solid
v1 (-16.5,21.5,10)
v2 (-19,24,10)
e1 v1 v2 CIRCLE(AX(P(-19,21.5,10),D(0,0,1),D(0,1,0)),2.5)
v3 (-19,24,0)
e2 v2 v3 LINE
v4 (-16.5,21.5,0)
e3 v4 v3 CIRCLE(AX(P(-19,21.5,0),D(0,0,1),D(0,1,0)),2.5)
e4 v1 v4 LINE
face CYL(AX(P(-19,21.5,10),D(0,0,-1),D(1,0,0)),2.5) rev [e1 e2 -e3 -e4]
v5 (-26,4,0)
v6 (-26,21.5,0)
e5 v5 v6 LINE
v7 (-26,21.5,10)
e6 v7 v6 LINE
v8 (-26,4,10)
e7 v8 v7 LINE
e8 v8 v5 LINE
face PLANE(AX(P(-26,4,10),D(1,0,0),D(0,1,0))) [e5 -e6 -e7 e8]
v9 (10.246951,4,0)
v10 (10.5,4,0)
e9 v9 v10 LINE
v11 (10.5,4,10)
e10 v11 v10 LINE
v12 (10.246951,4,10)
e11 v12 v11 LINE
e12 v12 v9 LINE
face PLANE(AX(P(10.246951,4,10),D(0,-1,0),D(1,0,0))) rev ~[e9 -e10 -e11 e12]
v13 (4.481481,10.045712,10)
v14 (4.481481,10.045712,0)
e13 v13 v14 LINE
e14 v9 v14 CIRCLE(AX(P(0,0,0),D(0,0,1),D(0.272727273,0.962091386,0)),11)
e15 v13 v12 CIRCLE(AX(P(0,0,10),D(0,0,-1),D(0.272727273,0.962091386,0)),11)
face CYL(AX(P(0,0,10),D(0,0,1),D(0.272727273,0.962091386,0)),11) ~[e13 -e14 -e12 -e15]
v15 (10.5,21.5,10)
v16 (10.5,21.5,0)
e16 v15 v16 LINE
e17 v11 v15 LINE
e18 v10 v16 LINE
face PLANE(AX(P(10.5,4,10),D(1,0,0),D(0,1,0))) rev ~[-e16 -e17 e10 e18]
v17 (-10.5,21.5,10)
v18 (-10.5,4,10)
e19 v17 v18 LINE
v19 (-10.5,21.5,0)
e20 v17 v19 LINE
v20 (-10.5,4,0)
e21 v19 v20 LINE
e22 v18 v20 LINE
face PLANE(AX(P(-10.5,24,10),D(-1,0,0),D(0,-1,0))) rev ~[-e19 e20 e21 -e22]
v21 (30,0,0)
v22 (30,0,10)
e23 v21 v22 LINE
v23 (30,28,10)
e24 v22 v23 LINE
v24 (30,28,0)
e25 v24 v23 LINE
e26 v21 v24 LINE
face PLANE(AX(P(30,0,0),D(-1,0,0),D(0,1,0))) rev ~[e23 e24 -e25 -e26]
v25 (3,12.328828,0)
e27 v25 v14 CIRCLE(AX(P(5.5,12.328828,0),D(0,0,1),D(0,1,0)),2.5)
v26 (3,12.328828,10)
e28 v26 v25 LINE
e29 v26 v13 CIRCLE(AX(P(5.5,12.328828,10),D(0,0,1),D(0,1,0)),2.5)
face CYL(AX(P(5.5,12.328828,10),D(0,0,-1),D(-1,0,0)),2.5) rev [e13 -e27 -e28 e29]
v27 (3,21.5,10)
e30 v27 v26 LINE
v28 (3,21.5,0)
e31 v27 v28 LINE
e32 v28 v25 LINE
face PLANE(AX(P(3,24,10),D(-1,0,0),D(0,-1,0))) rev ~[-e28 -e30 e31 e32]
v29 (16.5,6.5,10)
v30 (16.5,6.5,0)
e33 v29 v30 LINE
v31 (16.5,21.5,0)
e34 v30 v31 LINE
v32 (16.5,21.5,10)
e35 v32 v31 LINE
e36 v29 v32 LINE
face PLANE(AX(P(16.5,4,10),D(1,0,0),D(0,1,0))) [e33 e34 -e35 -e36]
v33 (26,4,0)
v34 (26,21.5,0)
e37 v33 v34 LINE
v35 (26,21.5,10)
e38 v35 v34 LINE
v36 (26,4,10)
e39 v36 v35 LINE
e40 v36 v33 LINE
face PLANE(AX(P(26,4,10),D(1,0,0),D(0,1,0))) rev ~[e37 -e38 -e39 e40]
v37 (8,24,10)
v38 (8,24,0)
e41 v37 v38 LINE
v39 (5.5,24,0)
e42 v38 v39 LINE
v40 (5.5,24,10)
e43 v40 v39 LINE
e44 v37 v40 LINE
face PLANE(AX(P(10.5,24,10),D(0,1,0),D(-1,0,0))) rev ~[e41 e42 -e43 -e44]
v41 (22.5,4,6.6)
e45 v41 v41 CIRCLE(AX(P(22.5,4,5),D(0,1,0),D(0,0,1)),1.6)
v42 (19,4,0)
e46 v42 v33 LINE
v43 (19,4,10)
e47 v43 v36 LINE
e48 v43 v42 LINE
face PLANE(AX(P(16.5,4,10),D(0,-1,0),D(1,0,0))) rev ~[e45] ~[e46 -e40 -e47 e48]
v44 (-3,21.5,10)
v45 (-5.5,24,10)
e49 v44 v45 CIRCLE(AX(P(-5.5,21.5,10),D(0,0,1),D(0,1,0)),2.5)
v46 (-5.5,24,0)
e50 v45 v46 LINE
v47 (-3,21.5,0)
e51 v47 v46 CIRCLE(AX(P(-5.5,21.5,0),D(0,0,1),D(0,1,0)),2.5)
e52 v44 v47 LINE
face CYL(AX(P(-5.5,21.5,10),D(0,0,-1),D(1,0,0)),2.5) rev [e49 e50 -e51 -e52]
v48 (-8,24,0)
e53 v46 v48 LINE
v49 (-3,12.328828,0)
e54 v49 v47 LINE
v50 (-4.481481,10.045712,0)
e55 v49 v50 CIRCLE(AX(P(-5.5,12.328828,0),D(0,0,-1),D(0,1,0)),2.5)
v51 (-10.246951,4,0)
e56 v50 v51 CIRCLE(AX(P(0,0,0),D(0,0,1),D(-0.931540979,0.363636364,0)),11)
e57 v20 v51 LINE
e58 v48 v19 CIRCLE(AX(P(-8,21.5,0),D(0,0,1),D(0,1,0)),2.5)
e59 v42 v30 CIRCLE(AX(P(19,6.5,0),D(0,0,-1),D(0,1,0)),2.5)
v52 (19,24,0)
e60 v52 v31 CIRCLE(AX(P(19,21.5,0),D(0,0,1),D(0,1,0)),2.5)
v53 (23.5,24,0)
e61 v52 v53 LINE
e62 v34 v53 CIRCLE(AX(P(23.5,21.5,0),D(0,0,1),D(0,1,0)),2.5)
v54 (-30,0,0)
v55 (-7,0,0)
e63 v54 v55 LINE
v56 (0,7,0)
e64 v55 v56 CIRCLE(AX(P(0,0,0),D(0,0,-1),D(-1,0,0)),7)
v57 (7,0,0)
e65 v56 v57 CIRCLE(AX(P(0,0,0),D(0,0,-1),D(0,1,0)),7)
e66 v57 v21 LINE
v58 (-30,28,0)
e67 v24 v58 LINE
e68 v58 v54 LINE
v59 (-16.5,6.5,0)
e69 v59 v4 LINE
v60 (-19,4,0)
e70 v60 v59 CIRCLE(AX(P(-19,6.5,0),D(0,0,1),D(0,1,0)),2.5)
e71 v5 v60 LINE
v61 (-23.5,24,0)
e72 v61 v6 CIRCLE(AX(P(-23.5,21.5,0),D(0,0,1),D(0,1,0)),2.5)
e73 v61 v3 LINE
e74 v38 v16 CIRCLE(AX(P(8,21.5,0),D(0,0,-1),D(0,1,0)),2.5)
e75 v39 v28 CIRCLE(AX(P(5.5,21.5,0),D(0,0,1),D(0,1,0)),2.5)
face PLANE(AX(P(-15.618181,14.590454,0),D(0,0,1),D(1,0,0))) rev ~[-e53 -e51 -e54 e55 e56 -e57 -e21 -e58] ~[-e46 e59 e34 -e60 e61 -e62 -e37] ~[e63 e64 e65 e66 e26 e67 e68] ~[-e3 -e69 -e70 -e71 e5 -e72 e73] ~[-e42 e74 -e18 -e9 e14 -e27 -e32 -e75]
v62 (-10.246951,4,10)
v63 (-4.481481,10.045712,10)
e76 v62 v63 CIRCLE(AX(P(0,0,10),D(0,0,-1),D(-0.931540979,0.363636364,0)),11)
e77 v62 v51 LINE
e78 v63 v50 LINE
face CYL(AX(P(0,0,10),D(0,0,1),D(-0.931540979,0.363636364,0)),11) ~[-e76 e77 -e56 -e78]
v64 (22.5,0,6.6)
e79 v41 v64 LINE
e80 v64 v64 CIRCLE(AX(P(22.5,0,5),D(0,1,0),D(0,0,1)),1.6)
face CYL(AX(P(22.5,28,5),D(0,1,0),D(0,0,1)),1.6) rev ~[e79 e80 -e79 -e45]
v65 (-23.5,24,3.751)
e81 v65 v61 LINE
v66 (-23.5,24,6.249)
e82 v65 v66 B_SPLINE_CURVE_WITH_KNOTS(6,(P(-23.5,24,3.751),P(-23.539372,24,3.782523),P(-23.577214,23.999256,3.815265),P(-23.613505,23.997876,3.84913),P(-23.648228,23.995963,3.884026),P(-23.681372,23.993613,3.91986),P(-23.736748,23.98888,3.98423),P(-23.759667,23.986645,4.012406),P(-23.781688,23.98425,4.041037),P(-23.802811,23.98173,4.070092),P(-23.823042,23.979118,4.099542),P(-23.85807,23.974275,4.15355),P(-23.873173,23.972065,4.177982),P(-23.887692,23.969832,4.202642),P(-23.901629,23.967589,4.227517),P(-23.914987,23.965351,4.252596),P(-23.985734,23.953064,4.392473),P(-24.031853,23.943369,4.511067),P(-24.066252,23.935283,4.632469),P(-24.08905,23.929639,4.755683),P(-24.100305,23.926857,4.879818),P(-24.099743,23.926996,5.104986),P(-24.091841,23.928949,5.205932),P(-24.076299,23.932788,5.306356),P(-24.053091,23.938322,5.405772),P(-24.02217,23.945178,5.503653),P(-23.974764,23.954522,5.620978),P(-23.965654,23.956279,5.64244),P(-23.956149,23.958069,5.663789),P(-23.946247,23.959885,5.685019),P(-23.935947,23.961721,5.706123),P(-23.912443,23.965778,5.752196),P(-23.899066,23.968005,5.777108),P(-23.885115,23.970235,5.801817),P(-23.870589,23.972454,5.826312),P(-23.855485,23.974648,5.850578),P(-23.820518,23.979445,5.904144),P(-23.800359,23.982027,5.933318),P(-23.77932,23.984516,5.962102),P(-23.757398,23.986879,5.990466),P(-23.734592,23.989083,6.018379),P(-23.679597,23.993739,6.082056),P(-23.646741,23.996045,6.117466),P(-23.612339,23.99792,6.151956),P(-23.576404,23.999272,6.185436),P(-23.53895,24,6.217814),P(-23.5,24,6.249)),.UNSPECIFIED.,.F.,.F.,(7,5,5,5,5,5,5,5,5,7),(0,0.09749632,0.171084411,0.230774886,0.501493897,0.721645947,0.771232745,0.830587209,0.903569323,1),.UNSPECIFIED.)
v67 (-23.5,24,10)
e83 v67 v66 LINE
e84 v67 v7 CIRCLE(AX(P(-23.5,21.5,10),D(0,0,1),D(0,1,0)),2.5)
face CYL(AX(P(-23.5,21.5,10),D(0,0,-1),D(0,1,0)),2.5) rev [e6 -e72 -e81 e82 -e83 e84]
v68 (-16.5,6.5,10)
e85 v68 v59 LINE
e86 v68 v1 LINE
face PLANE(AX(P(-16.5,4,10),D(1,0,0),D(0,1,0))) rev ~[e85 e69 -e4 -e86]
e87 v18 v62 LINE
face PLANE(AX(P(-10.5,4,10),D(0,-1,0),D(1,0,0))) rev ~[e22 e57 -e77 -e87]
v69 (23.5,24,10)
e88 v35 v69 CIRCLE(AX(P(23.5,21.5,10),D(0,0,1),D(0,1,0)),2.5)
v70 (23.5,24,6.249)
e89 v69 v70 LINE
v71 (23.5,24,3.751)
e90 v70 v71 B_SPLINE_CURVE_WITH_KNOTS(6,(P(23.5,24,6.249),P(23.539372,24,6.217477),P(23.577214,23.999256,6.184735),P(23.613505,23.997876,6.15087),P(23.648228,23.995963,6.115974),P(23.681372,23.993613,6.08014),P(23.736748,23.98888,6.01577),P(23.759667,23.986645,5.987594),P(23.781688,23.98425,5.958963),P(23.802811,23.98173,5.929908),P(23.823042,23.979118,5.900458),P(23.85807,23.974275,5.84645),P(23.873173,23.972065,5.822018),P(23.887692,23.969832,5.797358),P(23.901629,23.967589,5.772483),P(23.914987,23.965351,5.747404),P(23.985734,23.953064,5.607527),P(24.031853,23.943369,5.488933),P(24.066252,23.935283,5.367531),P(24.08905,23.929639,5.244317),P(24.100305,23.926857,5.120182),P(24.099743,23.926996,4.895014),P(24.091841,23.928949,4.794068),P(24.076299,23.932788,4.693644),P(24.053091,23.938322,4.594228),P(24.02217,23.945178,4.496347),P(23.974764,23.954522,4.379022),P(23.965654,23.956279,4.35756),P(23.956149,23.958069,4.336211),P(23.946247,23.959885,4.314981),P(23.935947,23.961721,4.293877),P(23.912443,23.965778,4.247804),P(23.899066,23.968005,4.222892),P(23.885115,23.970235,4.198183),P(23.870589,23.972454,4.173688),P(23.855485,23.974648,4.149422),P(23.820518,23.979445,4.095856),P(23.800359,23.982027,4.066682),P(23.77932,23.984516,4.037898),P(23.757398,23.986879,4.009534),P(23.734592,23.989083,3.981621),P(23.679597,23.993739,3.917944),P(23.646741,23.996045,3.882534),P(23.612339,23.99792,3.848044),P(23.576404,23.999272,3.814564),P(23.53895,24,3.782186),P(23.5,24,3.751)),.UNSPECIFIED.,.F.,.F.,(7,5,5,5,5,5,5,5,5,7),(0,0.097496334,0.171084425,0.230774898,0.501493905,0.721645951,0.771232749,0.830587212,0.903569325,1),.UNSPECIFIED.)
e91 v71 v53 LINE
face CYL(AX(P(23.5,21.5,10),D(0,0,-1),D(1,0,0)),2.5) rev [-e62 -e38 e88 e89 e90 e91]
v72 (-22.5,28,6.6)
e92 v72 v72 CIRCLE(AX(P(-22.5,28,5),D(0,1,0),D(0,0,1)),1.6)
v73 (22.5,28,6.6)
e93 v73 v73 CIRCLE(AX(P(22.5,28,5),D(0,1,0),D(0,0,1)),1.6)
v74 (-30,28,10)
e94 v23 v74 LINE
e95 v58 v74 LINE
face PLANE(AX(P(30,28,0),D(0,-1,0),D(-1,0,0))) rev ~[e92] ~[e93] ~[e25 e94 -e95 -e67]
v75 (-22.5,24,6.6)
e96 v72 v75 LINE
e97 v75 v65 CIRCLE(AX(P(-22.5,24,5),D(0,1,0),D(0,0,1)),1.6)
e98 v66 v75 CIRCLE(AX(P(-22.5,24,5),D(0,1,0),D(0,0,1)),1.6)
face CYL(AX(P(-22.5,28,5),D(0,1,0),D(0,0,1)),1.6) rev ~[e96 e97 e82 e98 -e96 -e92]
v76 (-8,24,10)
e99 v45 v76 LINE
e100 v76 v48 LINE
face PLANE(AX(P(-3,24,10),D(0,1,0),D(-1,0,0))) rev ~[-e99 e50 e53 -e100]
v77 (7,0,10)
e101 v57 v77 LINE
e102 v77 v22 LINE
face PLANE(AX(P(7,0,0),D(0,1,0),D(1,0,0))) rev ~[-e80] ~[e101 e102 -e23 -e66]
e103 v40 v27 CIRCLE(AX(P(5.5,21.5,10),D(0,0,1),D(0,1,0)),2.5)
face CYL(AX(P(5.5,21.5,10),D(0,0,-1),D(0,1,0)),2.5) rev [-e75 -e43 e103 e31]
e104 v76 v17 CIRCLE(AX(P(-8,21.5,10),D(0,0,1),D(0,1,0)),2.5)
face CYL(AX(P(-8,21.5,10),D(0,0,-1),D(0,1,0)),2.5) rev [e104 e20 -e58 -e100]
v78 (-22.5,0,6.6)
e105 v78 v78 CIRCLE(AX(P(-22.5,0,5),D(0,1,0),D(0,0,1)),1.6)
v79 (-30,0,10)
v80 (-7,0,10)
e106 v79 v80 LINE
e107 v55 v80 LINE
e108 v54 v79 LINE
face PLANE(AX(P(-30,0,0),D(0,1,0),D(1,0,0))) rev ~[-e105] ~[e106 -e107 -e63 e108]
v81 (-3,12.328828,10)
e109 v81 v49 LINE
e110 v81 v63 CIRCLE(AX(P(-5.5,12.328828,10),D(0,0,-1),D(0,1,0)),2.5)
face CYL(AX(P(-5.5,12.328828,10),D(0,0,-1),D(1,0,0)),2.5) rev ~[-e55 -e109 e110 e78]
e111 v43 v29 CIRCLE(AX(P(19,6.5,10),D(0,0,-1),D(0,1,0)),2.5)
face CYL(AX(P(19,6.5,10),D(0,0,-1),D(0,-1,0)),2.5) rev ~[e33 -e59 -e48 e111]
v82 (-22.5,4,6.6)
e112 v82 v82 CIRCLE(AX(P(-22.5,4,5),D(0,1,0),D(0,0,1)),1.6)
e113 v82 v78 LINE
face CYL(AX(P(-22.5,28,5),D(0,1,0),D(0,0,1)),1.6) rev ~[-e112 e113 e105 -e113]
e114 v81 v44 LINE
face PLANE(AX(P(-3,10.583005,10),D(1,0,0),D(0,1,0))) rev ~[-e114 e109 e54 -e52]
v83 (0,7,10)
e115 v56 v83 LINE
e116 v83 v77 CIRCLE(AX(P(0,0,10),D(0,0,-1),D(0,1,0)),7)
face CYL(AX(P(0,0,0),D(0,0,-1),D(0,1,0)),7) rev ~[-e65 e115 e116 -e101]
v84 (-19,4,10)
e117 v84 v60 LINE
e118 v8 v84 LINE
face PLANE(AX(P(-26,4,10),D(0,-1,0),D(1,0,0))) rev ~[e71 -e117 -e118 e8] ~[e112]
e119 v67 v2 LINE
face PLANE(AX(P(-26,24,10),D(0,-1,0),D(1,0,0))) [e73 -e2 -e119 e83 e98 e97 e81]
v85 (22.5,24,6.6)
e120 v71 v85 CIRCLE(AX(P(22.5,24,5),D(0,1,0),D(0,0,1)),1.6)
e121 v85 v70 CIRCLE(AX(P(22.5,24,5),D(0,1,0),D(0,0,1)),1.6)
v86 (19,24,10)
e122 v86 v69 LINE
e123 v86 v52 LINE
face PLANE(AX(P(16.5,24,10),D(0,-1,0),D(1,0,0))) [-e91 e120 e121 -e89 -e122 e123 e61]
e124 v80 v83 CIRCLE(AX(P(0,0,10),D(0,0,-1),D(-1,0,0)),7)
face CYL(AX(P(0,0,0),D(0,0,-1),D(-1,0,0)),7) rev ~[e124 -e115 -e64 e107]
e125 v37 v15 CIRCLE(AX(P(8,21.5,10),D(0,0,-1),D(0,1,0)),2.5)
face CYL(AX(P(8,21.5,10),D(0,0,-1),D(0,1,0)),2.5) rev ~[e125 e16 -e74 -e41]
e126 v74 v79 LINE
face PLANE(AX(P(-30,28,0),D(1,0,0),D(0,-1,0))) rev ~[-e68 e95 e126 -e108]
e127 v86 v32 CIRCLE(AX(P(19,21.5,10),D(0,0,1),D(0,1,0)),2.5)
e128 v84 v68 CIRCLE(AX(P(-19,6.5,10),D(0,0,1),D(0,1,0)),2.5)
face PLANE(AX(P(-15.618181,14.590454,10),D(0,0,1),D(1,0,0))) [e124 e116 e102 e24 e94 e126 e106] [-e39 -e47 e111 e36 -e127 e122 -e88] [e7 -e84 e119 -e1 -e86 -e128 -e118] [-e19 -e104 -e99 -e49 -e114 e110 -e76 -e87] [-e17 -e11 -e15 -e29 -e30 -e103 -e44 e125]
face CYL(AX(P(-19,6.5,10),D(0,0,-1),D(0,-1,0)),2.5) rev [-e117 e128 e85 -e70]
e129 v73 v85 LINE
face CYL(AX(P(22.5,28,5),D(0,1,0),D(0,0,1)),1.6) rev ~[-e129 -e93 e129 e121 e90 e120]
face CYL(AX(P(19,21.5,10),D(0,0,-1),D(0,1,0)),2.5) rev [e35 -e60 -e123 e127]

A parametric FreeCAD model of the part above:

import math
import FreeCAD as App
import Part
import Sketcher
from FreeCAD import Vector


def edges_at(feature, points):
    """Names of the edges that pass closest to the given points."""
    edges = feature.Shape.Edges
    near = lambda p: min(range(len(edges)), key=lambda i: edges[i].distToShape(Part.Vertex(*p))[0])
    return sorted({f"Edge{near(p) + 1}" for p in points})


def add_polygon(sketch, points):
    """Adds a closed chain of lines whose ends are joined by coincident constraints."""
    first, n = sketch.GeometryCount, len(points)
    for a, b in zip(points, points[1:] + points[:1]):
        sketch.addGeometry(Part.LineSegment(App.Vector(*a, 0), App.Vector(*b, 0)), False)
    for i in range(n):
        sketch.addConstraint(Sketcher.Constraint("Coincident", first + i, 2, first + (i + 1) % n, 1))

doc = App.newDocument("Part")
params = doc.addObject("Spreadsheet::Sheet", "Params")
for row, (alias, value) in enumerate([
    ("sketch1_radius", "7 mm"),
    ("sketch1_width", "23 mm"),
    ("sketch1_height", "28 mm"),
    ("pad1_length", "10 mm"),
    ("sketch2_radius", "11 mm"),
    ("sketch2_height", "20 mm"),
    ("sketch2_width", "7.5 mm"),
    ("sketch2_width2", "9.5 mm"),
    ("pocket1_length", "15 mm"),
    ("fillet_radius", "2.5 mm"),
    ("sketch3_diameter", "3.2 mm"),
], start=1):
    params.set(f"A{row}", alias)
    params.set(f"B{row}", "=" + value)
    params.setAlias(f"B{row}", alias)

body = doc.addObject("PartDesign::Body", "Body")

# Sketch on XY plane
sketch1 = doc.addObject("Sketcher::SketchObject", "Sketch")
body.addObject(sketch1)
sketch1.AttachmentSupport = (doc.XY_Plane, [""])
sketch1.MapMode = "FlatFace"
sketch1.addGeometry([
    Part.LineSegment(Vector(-30, 28, 0), Vector(-30, 0, 0)),  # 0
    Part.LineSegment(Vector(-30, 0, 0), Vector(-7, 0, 0)),  # 1
    Part.ArcOfCircle(Part.Circle(Vector(0, 0, 0), Vector(0, 0, 1), 7), math.radians(90), math.radians(180)),  # 2
    Part.ArcOfCircle(Part.Circle(Vector(0, 0, 0), Vector(0, 0, 1), 7), math.radians(0), math.radians(90)),  # 3
    Part.LineSegment(Vector(7, 0, 0), Vector(30, 0, 0)),  # 4
    Part.LineSegment(Vector(30, 0, 0), Vector(30, 28, 0)),  # 5
    Part.LineSegment(Vector(30, 28, 0), Vector(-30, 28, 0)),  # 6
], False)
sketch1.addConstraint([
    Sketcher.Constraint("Coincident", 0, 2, 1, 1),
    Sketcher.Constraint("Coincident", 1, 2, 2, 2),
    Sketcher.Constraint("Tangent", 2, 1, 3, 2),
    Sketcher.Constraint("Coincident", 3, 1, 4, 1),
    Sketcher.Constraint("Coincident", 4, 2, 5, 1),
    Sketcher.Constraint("Coincident", 5, 2, 6, 1),
    Sketcher.Constraint("Coincident", 6, 2, 0, 1),
    Sketcher.Constraint("Vertical", 0),
    Sketcher.Constraint("Horizontal", 1),
    Sketcher.Constraint("Horizontal", 4),
    Sketcher.Constraint("Vertical", 5),
    Sketcher.Constraint("Horizontal", 6),
    Sketcher.Constraint("Coincident", 2, 3, -1, 1),
    Sketcher.Constraint("Equal", 2, 3),
    Sketcher.Constraint("Symmetric", 0, 2, 4, 2, -1, 1),
    Sketcher.Constraint("PointOnObject", 0, 2, -1),
    Sketcher.Constraint("PointOnObject", 2, 1, -2),
    Sketcher.Constraint("Radius", 2, 7.0),
    Sketcher.Constraint("DistanceX", 1, 1, 1, 2, 23.0),
    Sketcher.Constraint("DistanceY", 0, 2, 0, 1, 28.0),
])
sketch1.setExpression("Constraints[17]", "Params.sketch1_radius")
sketch1.setExpression("Constraints[18]", "Params.sketch1_width")
sketch1.setExpression("Constraints[19]", "Params.sketch1_height")
pad1 = doc.addObject("PartDesign::Pad", "Pad")
body.addObject(pad1)
pad1.Profile = sketch1
pad1.setExpression("Length", "Params.pad1_length")

# Sketch on XY plane
sketch2 = doc.addObject("Sketcher::SketchObject", "Sketch001")
body.addObject(sketch2)
sketch2.AttachmentSupport = (doc.XY_Plane, [""])
sketch2.MapMode = "FlatFace"
sketch2.AttachmentOffset = App.Placement(Vector(0, 0, 10), App.Rotation())
sketch2.addGeometry(Part.LineSegment(Vector(10.5, 24, 0), Vector(3, 24, 0)), False)  # 0
sketch2.addGeometry(Part.LineSegment(Vector(3, 24, 0), Vector(3, 10.58, 0)), False)  # 1
sketch2.addGeometry(Part.ArcOfCircle(Part.Circle(Vector(0, 0, 0), Vector(0, 0, 1), 11), math.radians(21), math.radians(74)), False)  # 2
sketch2.addGeometry(Part.LineSegment(Vector(10.25, 4, 0), Vector(10.5, 4, 0)), False)  # 3
sketch2.addGeometry(Part.LineSegment(Vector(10.5, 4, 0), Vector(10.5, 24, 0)), False)  # 4
sketch2.addGeometry(Part.LineSegment(Vector(-3, 10.58, 0), Vector(-3, 24, 0)), False)  # 5
sketch2.addGeometry(Part.LineSegment(Vector(-3, 24, 0), Vector(-10.5, 24, 0)), False)  # 6
sketch2.addGeometry(Part.LineSegment(Vector(-10.5, 24, 0), Vector(-10.5, 4, 0)), False)  # 7
sketch2.addGeometry(Part.LineSegment(Vector(-10.5, 4, 0), Vector(-10.25, 4, 0)), False)  # 8
sketch2.addGeometry(Part.ArcOfCircle(Part.Circle(Vector(0, 0, 0), Vector(0, 0, 1), 11), math.radians(106), math.radians(159)), False)  # 9
add_polygon(sketch2, [(16.5, 24), (16.5, 4), (26, 4), (26, 24)])  # lines 10-13
add_polygon(sketch2, [(-26, 24), (-26, 4), (-16.5, 4), (-16.5, 24)])  # lines 14-17
sketch2.addConstraint([
    Sketcher.Constraint("Coincident", 0, 2, 1, 1),
    Sketcher.Constraint("Coincident", 1, 2, 2, 2),
    Sketcher.Constraint("Coincident", 2, 1, 3, 1),
    Sketcher.Constraint("Coincident", 3, 2, 4, 1),
    Sketcher.Constraint("Coincident", 4, 2, 0, 1),
    Sketcher.Constraint("Coincident", 5, 2, 6, 1),
    Sketcher.Constraint("Coincident", 6, 2, 7, 1),
    Sketcher.Constraint("Coincident", 7, 2, 8, 1),
    Sketcher.Constraint("Coincident", 8, 2, 9, 2),
    Sketcher.Constraint("Coincident", 9, 1, 5, 1),
    Sketcher.Constraint("Horizontal", 0),
    Sketcher.Constraint("Vertical", 1),
    Sketcher.Constraint("Horizontal", 3),
    Sketcher.Constraint("Vertical", 4),
    Sketcher.Constraint("Vertical", 5),
    Sketcher.Constraint("Horizontal", 6),
    Sketcher.Constraint("Vertical", 7),
    Sketcher.Constraint("Horizontal", 8),
    Sketcher.Constraint("Vertical", 10),
    Sketcher.Constraint("Horizontal", 11),
    Sketcher.Constraint("Vertical", 12),
    Sketcher.Constraint("Horizontal", 13),
    Sketcher.Constraint("Vertical", 14),
    Sketcher.Constraint("Horizontal", 15),
    Sketcher.Constraint("Vertical", 16),
    Sketcher.Constraint("Horizontal", 17),
    Sketcher.Constraint("Coincident", 2, 3, -1, 1),
    Sketcher.Constraint("Coincident", 9, 3, -1, 1),
    Sketcher.Constraint("Equal", 2, 9),
    Sketcher.Constraint("Symmetric", 0, 2, 5, 2, -2),
    Sketcher.Constraint("Symmetric", 3, 2, 7, 2, -2),
    Sketcher.Constraint("Symmetric", 11, 2, 14, 2, -2),
    Sketcher.Constraint("Symmetric", 13, 2, 16, 2, -2),
    Sketcher.Constraint("Horizontal", 8, 2, 10, 2),
    Sketcher.Constraint("Horizontal", 6, 2, 12, 2),
    Sketcher.Constraint("Radius", 2, 11.0),
    Sketcher.Constraint("DistanceY", 4, 1, 4, 2, 20.0),
    Sketcher.Constraint("DistanceX", 0, 2, 0, 1, 7.5),
    Sketcher.Constraint("DistanceX", 11, 1, 11, 2, 9.5),
    Sketcher.Constraint("DistanceX", -1, 1, 0, 2, 3.0),
    Sketcher.Constraint("DistanceY", -1, 1, 0, 2, 24.0),
    Sketcher.Constraint("DistanceX", -1, 1, 11, 2, 26.0),
])
sketch2.setExpression("Constraints[43]", "Params.sketch2_radius")
sketch2.setExpression("Constraints[44]", "Params.sketch2_height")
sketch2.setExpression("Constraints[45]", "Params.sketch2_width")
sketch2.setExpression("Constraints[46]", "Params.sketch2_width2")
pocket1 = doc.addObject("PartDesign::Pocket", "Pocket")
body.addObject(pocket1)
pocket1.Profile = sketch2
pocket1.setExpression("Length", "Params.pocket1_length")
doc.recompute()

fillet = doc.addObject("PartDesign::Fillet", "Fillet")
body.addObject(fillet)
fillet.Base = (pocket1, edges_at(pocket1, [
    (16.5, 4, 5),
    (16.5, 24, 5),
    (26, 24, 5),
    (3, 10.583, 5),
    (3, 24, 5),
    (10.5, 24, 5),
    (-3, 10.583, 5),
    (-10.5, 24, 5),
    (-3, 24, 5),
    (-16.5, 4, 5),
    (-26, 24, 5),
    (-16.5, 24, 5),
]))
fillet.setExpression("Radius", "Params.fillet_radius")

# Sketch on XZ plane
sketch3 = doc.addObject("Sketcher::SketchObject", "Sketch002")
body.addObject(sketch3)
sketch3.AttachmentSupport = (doc.XZ_Plane, [""])
sketch3.MapMode = "FlatFace"
sketch3.AttachmentOffset = App.Placement(Vector(0, 0, -28), App.Rotation())
sketch3.addGeometry([
    Part.Circle(Vector(-22.5, 5, 0), Vector(0, 0, 1), 1.6),
    Part.Circle(Vector(22.5, 5, 0), Vector(0, 0, 1), 1.6),
], False)
sketch3.addConstraint([
    Sketcher.Constraint("Equal", 0, 1),
    Sketcher.Constraint("Symmetric", 0, 3, 1, 3, -2),
    Sketcher.Constraint("Diameter", 0, 3.2),
    Sketcher.Constraint("DistanceY", -1, 1, 0, 3, 5.0),
    Sketcher.Constraint("DistanceX", 0, 3, 1, 3, 45.0),
])
sketch3.setExpression("Constraints[2]", "Params.sketch3_diameter")
pocket2 = doc.addObject("PartDesign::Pocket", "Pocket001")
body.addObject(pocket2)
pocket2.Profile = sketch3
pocket2.Type = "ThroughAll"
pocket2.Reversed = True

doc.recompute()
